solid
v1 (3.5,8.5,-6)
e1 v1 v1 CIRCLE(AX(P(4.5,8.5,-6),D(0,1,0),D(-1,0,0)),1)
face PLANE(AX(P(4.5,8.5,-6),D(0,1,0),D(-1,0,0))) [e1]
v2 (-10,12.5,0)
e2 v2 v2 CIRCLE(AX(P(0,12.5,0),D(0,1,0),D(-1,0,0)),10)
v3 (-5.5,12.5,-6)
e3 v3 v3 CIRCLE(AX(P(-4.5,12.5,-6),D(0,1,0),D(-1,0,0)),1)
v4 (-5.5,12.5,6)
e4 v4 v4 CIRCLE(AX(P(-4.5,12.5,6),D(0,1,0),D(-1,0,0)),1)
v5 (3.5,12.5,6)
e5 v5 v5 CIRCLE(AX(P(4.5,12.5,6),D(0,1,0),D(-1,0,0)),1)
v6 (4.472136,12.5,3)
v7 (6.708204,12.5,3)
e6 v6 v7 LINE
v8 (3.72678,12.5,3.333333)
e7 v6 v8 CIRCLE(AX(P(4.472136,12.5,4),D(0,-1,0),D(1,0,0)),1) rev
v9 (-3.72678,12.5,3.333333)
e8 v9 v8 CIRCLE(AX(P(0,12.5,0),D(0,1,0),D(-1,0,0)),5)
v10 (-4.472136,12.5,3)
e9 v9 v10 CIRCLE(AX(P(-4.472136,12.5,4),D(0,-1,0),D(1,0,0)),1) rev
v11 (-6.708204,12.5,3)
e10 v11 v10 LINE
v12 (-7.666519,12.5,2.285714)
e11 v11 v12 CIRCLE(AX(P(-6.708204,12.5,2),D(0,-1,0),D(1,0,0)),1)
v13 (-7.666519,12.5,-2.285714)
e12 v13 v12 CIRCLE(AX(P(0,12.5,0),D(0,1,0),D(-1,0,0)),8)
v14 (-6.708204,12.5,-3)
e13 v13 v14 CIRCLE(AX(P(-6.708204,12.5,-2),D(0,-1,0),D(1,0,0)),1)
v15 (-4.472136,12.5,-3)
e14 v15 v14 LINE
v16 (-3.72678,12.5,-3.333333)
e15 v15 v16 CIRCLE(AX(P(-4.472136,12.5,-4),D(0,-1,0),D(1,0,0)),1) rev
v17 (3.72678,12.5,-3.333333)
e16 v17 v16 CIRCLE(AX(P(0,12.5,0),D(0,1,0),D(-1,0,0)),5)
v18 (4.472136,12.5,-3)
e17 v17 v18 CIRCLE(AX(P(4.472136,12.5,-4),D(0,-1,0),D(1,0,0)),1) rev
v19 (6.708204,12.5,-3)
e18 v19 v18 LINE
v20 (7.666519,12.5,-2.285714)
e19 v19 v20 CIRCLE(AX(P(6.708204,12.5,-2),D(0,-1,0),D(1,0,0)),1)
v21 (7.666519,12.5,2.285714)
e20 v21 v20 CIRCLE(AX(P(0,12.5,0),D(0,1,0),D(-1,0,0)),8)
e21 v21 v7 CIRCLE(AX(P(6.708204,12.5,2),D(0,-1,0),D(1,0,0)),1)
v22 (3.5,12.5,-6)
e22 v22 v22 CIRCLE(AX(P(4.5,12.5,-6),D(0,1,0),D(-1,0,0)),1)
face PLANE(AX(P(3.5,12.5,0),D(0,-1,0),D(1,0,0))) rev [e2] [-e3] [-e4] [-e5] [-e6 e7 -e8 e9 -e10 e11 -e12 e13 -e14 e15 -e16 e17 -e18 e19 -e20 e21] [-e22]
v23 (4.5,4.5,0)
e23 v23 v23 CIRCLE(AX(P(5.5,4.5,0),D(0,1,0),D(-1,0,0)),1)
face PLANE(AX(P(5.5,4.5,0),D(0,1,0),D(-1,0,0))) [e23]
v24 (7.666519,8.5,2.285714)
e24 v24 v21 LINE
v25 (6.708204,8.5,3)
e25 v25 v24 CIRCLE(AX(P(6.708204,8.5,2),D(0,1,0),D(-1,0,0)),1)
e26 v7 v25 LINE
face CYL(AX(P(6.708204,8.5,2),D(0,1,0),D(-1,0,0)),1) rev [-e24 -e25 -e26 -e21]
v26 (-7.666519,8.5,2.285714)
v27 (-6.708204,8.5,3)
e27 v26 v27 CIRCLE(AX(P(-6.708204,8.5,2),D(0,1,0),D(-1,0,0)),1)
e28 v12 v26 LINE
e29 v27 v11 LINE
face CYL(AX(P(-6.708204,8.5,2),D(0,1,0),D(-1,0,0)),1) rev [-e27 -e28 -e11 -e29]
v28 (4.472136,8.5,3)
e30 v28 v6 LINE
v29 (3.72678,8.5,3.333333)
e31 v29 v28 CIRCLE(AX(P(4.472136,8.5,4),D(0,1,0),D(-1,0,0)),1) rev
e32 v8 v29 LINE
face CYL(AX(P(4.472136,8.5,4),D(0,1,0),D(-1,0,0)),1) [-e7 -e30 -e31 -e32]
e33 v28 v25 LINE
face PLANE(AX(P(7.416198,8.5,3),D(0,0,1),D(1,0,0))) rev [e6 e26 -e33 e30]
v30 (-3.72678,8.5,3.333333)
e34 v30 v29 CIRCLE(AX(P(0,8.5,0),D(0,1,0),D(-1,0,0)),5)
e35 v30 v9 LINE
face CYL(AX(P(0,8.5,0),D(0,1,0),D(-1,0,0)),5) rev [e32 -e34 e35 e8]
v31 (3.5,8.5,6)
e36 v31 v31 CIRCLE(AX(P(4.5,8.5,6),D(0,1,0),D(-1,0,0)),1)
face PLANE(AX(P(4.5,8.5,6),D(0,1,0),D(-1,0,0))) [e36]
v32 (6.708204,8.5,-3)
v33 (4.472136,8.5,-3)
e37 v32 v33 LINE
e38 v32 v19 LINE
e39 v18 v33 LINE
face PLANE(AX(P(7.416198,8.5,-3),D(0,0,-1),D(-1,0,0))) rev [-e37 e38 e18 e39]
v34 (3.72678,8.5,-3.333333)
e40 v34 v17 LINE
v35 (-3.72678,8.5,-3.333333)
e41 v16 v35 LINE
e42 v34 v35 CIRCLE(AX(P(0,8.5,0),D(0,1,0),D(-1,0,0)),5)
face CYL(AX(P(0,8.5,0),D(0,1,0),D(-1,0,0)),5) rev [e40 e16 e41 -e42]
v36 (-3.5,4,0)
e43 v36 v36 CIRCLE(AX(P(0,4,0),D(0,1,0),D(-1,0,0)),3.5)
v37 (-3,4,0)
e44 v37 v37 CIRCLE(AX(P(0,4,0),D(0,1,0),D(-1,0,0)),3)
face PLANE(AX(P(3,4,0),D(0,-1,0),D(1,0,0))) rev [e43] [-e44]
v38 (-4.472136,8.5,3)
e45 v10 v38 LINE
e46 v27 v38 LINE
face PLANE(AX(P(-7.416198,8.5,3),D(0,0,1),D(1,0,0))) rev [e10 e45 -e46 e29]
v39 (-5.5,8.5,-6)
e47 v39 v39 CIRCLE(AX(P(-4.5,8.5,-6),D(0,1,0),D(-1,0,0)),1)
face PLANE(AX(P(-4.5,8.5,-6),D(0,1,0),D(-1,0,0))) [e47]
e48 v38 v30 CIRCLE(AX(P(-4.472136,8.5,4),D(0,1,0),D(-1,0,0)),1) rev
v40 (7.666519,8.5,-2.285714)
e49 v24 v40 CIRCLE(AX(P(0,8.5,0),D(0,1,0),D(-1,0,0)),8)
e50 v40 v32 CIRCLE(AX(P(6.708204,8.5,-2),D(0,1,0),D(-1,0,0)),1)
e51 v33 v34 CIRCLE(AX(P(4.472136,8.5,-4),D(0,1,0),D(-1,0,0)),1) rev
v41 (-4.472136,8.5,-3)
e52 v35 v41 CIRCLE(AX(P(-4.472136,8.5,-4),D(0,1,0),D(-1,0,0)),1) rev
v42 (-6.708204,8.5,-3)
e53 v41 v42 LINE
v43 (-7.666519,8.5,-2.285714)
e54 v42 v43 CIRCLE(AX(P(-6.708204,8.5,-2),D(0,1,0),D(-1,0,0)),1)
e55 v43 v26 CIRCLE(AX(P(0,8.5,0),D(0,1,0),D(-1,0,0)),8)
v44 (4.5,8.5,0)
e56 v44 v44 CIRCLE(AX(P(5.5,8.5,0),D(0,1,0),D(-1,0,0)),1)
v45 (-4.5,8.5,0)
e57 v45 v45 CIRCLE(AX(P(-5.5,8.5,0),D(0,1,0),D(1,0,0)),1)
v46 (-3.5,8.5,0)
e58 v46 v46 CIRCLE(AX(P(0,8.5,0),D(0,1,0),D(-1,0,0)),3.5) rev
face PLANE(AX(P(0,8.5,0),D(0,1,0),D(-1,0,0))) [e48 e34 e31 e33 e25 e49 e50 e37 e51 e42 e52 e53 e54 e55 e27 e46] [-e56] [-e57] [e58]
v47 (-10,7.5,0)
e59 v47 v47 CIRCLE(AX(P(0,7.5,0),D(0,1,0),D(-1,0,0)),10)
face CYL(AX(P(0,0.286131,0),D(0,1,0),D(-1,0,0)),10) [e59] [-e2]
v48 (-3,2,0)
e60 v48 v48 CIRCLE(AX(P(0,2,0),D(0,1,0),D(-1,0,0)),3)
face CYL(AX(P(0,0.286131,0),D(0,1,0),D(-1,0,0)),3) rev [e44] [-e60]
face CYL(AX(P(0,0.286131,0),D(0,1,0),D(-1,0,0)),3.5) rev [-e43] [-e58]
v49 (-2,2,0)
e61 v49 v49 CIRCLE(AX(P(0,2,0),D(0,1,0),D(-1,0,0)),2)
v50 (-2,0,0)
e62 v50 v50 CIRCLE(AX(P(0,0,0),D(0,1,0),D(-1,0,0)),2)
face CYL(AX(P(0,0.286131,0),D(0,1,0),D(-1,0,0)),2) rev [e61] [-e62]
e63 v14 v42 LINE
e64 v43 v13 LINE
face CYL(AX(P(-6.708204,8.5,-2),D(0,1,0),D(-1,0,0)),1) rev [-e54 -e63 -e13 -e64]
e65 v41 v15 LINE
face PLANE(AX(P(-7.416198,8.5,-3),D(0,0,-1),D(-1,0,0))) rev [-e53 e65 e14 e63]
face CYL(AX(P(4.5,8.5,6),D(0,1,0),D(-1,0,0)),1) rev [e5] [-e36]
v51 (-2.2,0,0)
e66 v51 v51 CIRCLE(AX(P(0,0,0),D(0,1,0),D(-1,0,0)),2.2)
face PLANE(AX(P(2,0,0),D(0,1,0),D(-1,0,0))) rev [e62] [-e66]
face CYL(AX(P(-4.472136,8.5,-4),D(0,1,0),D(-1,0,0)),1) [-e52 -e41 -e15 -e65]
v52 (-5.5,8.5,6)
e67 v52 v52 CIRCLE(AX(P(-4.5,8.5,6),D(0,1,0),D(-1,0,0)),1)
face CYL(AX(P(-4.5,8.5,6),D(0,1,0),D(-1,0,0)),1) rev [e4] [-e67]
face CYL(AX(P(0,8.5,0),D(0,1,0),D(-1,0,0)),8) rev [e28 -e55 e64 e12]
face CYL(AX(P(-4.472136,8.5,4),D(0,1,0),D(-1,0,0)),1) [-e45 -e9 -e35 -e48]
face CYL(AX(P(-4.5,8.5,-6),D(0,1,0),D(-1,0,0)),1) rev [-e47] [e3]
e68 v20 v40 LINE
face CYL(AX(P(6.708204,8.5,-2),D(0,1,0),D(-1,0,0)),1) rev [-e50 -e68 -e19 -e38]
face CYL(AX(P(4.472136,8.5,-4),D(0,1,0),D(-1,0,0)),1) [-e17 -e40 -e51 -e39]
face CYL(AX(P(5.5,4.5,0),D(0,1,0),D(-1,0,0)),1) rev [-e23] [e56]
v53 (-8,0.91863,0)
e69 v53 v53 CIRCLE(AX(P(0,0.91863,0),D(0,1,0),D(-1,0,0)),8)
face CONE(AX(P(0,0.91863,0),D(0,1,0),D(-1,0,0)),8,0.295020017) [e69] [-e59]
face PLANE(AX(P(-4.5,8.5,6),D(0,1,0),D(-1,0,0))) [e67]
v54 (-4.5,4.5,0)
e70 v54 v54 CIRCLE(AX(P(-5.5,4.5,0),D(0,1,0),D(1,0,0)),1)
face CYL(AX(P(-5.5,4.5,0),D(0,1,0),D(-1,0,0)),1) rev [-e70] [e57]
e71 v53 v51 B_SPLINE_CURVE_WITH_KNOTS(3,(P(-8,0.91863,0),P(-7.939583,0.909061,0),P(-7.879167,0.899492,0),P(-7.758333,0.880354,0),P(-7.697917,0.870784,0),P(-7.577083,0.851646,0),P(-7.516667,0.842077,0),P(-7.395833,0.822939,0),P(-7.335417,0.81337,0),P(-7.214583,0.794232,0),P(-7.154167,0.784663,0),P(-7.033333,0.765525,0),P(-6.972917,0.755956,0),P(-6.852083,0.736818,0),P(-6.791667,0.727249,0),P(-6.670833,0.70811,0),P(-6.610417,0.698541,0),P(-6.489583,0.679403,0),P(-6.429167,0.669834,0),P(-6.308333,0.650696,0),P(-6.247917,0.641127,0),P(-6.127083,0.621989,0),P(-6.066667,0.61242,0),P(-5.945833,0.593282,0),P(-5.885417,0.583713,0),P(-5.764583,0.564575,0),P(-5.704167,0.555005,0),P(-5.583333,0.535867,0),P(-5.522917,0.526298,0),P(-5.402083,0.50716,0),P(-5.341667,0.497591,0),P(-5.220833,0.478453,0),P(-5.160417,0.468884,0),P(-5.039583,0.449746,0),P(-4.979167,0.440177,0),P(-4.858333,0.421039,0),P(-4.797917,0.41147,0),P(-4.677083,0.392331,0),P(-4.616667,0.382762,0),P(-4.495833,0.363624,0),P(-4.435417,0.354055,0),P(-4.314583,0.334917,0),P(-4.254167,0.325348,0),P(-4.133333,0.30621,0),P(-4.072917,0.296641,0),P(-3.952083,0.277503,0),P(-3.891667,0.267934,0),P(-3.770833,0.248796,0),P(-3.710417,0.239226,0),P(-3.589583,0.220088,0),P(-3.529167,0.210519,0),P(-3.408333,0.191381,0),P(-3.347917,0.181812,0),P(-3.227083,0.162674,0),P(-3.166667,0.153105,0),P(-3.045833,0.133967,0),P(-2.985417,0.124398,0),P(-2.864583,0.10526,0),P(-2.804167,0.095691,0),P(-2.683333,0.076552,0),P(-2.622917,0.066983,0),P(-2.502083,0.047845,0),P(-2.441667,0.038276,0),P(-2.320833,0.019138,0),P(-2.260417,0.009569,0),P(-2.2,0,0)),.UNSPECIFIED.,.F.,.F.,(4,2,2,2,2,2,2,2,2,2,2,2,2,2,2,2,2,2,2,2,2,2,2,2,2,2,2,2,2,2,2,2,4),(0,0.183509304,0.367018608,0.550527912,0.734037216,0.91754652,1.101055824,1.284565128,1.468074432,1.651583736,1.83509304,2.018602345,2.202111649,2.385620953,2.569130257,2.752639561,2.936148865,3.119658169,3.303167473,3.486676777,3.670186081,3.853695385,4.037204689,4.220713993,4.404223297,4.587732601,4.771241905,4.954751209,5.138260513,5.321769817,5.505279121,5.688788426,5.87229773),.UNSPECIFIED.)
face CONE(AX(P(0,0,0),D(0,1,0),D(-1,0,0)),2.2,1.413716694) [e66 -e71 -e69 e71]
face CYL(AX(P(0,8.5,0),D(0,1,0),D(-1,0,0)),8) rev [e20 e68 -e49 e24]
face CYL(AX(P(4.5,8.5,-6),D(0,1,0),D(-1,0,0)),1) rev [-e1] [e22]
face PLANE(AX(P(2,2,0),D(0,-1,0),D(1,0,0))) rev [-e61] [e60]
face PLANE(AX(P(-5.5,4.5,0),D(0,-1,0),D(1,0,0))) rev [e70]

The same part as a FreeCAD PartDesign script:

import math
import FreeCAD as App
import Part
import Sketcher
from FreeCAD import Vector
Q = App.Units.Quantity


def edges_at(feature, points):
    """Names of the edges that pass closest to the given points."""
    edges = feature.Shape.Edges
    near = lambda p: min(range(len(edges)), key=lambda i: edges[i].distToShape(Part.Vertex(*p))[0])
    return sorted({f"Edge{near(p) + 1}" for p in points})

doc = App.newDocument("Part")
params = doc.addObject("Spreadsheet::Sheet", "Params")
for row, (alias, value) in enumerate([
    ("sketch1_width", "1 mm"),
    ("sketch1_height", "2 mm"),
    ("sketch1_height2", "5 mm"),
    ("sketch1_width2", "0.2 mm"),
    ("sketch1_width3", "6.5 mm"),
    ("revolution_angle", "360 deg"),
    ("sketch2_radius", "8 mm"),
    ("sketch2_radius2", "5 mm"),
    ("pocket1_length", "4 mm"),
    ("fillet_radius", "1 mm"),
    ("sketch3_diameter", "2 mm"),
    ("pocket2_length", "4 mm"),
    ("sketch4_diameter", "2 mm"),
    ("pocket3_length", "4 mm"),
], start=1):
    params.set(f"A{row}", alias)
    params.set(f"B{row}", "=" + value)
    params.setAlias(f"B{row}", alias)

body = doc.addObject("PartDesign::Body", "Body")

# Sketch on XY plane
sketch1 = body.newObject("Sketcher::SketchObject", "Sketch")
sketch1.AttachmentSupport = (doc.getObject("XY_Plane"), [""])
sketch1.MapMode = "FlatFace"
sketch1.addGeometry(Part.LineSegment(Vector(2, 2, 0), Vector(2, 0, 0)), False)
sketch1.addGeometry(Part.LineSegment(Vector(2, 0, 0), Vector(2.2, 0, 0)), False)
sketch1.addGeometry(Part.LineSegment(Vector(2.2, 0, 0), Vector(8, 0.92, 0)), False)
sketch1.addGeometry(Part.LineSegment(Vector(8, 0.92, 0), Vector(10, 7.5, 0)), False)
sketch1.addGeometry(Part.LineSegment(Vector(10, 7.5, 0), Vector(10, 12.5, 0)), False)
sketch1.addGeometry(Part.LineSegment(Vector(10, 12.5, 0), Vector(3.5, 12.5, 0)), False)
sketch1.addGeometry(Part.LineSegment(Vector(3.5, 12.5, 0), Vector(3.5, 4, 0)), False)
sketch1.addGeometry(Part.LineSegment(Vector(3.5, 4, 0), Vector(3, 4, 0)), False)
sketch1.addGeometry(Part.LineSegment(Vector(3, 4, 0), Vector(3, 2, 0)), False)
sketch1.addGeometry(Part.LineSegment(Vector(3, 2, 0), Vector(2, 2, 0)), False)
sketch1.addConstraint(Sketcher.Constraint("Coincident", 0, 2, 1, 1))
sketch1.addConstraint(Sketcher.Constraint("Coincident", 1, 2, 2, 1))
sketch1.addConstraint(Sketcher.Constraint("Coincident", 2, 2, 3, 1))
sketch1.addConstraint(Sketcher.Constraint("Coincident", 3, 2, 4, 1))
sketch1.addConstraint(Sketcher.Constraint("Coincident", 4, 2, 5, 1))
sketch1.addConstraint(Sketcher.Constraint("Coincident", 5, 2, 6, 1))
sketch1.addConstraint(Sketcher.Constraint("Coincident", 6, 2, 7, 1))
sketch1.addConstraint(Sketcher.Constraint("Coincident", 7, 2, 8, 1))
sketch1.addConstraint(Sketcher.Constraint("Coincident", 8, 2, 9, 1))
sketch1.addConstraint(Sketcher.Constraint("Coincident", 9, 2, 0, 1))
sketch1.addConstraint(Sketcher.Constraint("Vertical", 0))
sketch1.addConstraint(Sketcher.Constraint("Horizontal", 1))
sketch1.addConstraint(Sketcher.Constraint("Vertical", 4))
sketch1.addConstraint(Sketcher.Constraint("Horizontal", 5))
sketch1.addConstraint(Sketcher.Constraint("Vertical", 6))
sketch1.addConstraint(Sketcher.Constraint("Horizontal", 7))
sketch1.addConstraint(Sketcher.Constraint("Vertical", 8))
sketch1.addConstraint(Sketcher.Constraint("Horizontal", 9))
sketch1.addConstraint(Sketcher.Constraint("PointOnObject", 0, 2, -1))
sketch1.addConstraint(Sketcher.Constraint("Equal", 0, 8))
sketch1.addConstraint(Sketcher.Constraint("DistanceX", 9, 2, 9, 1, Q("1 mm")))
sketch1.addConstraint(Sketcher.Constraint("DistanceY", 0, 2, 0, 1, Q("2 mm")))
sketch1.addConstraint(Sketcher.Constraint("DistanceY", 4, 1, 4, 2, Q("5 mm")))
sketch1.addConstraint(Sketcher.Constraint("Angle", 2, Q("9 deg")))
sketch1.addConstraint(Sketcher.Constraint("DistanceX", 1, 1, 1, 2, Q("0.2 mm")))
sketch1.addConstraint(Sketcher.Constraint("DistanceX", 5, 2, 5, 1, Q("6.5 mm")))
sketch1.addConstraint(Sketcher.Constraint("DistanceX", 7, 2, 7, 1, Q("0.5 mm")))
sketch1.addConstraint(Sketcher.Constraint("DistanceY", 6, 2, 6, 1, Q("8.5 mm")))
sketch1.addConstraint(Sketcher.Constraint("DistanceX", -1, 1, 0, 2, Q("2 mm")))
sketch1.addConstraint(Sketcher.Constraint("DistanceX", -1, 1, 2, 2, Q("8 mm")))
sketch1.setExpression("Constraints[20]", "Params.sketch1_width")
sketch1.setExpression("Constraints[21]", "Params.sketch1_height")
sketch1.setExpression("Constraints[22]", "Params.sketch1_height2")
sketch1.setExpression("Constraints[24]", "Params.sketch1_width2")
sketch1.setExpression("Constraints[25]", "Params.sketch1_width3")
revolution = body.newObject("PartDesign::Revolution", "Revolution")
revolution.Profile = sketch1
revolution.ReferenceAxis = (sketch1, ["V_Axis"])
revolution.setExpression("Angle", "Params.revolution_angle")

# Sketch on XZ plane
sketch2 = body.newObject("Sketcher::SketchObject", "Sketch001")
sketch2.AttachmentSupport = (doc.getObject("XZ_Plane"), [""])
sketch2.MapMode = "FlatFace"
sketch2.AttachmentOffset = App.Placement(Vector(0, 0, -12.5), App.Rotation())
sketch2.addGeometry(Part.LineSegment(Vector(-4, -3, 0), Vector(-7.4, -3, 0)), False)
sketch2.addGeometry(Part.ArcOfCircle(Part.Circle(Vector(0, 0, 0), Vector(0, 0, 1), 8), math.radians(158), math.radians(202)), False)
sketch2.addGeometry(Part.LineSegment(Vector(-7.4, 3, 0), Vector(-4, 3, 0)), False)
sketch2.addGeometry(Part.ArcOfCircle(Part.Circle(Vector(0, 0, 0), Vector(0, 0, 1), 5), math.radians(37), math.radians(143)), False)
sketch2.addGeometry(Part.LineSegment(Vector(4, 3, 0), Vector(7.4, 3, 0)), False)
sketch2.addGeometry(Part.ArcOfCircle(Part.Circle(Vector(0, 0, 0), Vector(0, 0, 1), 8), math.radians(-22), math.radians(22)), False)
sketch2.addGeometry(Part.LineSegment(Vector(7.4, -3, 0), Vector(4, -3, 0)), False)
sketch2.addGeometry(Part.ArcOfCircle(Part.Circle(Vector(0, 0, 0), Vector(0, 0, 1), 5), math.radians(-143), math.radians(-37)), False)
sketch2.addConstraint(Sketcher.Constraint("Coincident", 0, 2, 1, 2))
sketch2.addConstraint(Sketcher.Constraint("Coincident", 1, 1, 2, 1))
sketch2.addConstraint(Sketcher.Constraint("Coincident", 2, 2, 3, 2))
sketch2.addConstraint(Sketcher.Constraint("Coincident", 3, 1, 4, 1))
sketch2.addConstraint(Sketcher.Constraint("Coincident", 4, 2, 5, 2))
sketch2.addConstraint(Sketcher.Constraint("Coincident", 5, 1, 6, 1))
sketch2.addConstraint(Sketcher.Constraint("Coincident", 6, 2, 7, 2))
sketch2.addConstraint(Sketcher.Constraint("Coincident", 7, 1, 0, 1))
sketch2.addConstraint(Sketcher.Constraint("Horizontal", 0))
sketch2.addConstraint(Sketcher.Constraint("Horizontal", 2))
sketch2.addConstraint(Sketcher.Constraint("Horizontal", 4))
sketch2.addConstraint(Sketcher.Constraint("Horizontal", 6))
sketch2.addConstraint(Sketcher.Constraint("Coincident", 1, 3, -1, 1))
sketch2.addConstraint(Sketcher.Constraint("Coincident", 3, 3, -1, 1))
sketch2.addConstraint(Sketcher.Constraint("Coincident", 5, 3, -1, 1))
sketch2.addConstraint(Sketcher.Constraint("Coincident", 7, 3, -1, 1))
sketch2.addConstraint(Sketcher.Constraint("Equal", 1, 5))
sketch2.addConstraint(Sketcher.Constraint("Equal", 3, 7))
sketch2.addConstraint(Sketcher.Constraint("Horizontal", 2, 2, 3, 1))
sketch2.addConstraint(Sketcher.Constraint("Horizontal", 0, 2, 5, 1))
sketch2.addConstraint(Sketcher.Constraint("Vertical", 0, 2, 1, 1))
sketch2.addConstraint(Sketcher.Constraint("Radius", 1, Q("8 mm")))
sketch2.addConstraint(Sketcher.Constraint("Radius", 3, Q("5 mm")))
sketch2.addConstraint(Sketcher.Constraint("DistanceY", 0, 2, -1, 1, Q("3 mm")))
sketch2.setExpression("Constraints[21]", "Params.sketch2_radius")
sketch2.setExpression("Constraints[22]", "Params.sketch2_radius2")
pocket1 = body.newObject("PartDesign::Pocket", "Pocket")
pocket1.Profile = sketch2
pocket1.setExpression("Length", "Params.pocket1_length")
pocket1.Reversed = True
doc.recompute()

fillet = body.newObject("PartDesign::Fillet", "Fillet")
fillet.Base = (pocket1, edges_at(pocket1, [
    (-7.416, 10.5, 3),
    (-7.416, 10.5, -3),
    (-4, 10.5, -3),
    (4, 10.5, -3),
    (7.416, 10.5, -3),
    (7.416, 10.5, 3),
    (4, 10.5, 3),
    (-4, 10.5, 3),
]))
fillet.setExpression("Radius", "Params.fillet_radius")

# Sketch on XZ plane
sketch3 = body.newObject("Sketcher::SketchObject", "Sketch002")
sketch3.AttachmentSupport = (doc.getObject("XZ_Plane"), [""])
sketch3.MapMode = "FlatFace"
sketch3.AttachmentOffset = App.Placement(Vector(0, 0, -8.5), App.Rotation())
sketch3.addGeometry(Part.Circle(Vector(5.5, 0, 0), Vector(0, 0, 1), 1), False)
sketch3.addGeometry(Part.Circle(Vector(-5.5, 0, 0), Vector(0, 0, 1), 1), False)
sketch3.addConstraint(Sketcher.Constraint("Equal", 0, 1))
sketch3.addConstraint(Sketcher.Constraint("Symmetric", 0, 3, 1, 3, -1, 1))
sketch3.addConstraint(Sketcher.Constraint("PointOnObject", 0, 3, -1))
sketch3.addConstraint(Sketcher.Constraint("Diameter", 0, Q("2 mm")))
sketch3.addConstraint(Sketcher.Constraint("DistanceX", 1, 3, 0, 3, Q("11 mm")))
sketch3.setExpression("Constraints[3]", "Params.sketch3_diameter")
pocket2 = body.newObject("PartDesign::Pocket", "Pocket001")
pocket2.Profile = sketch3
pocket2.setExpression("Length", "Params.pocket2_length")
pocket2.Reversed = True

# Sketch on XZ plane
sketch4 = body.newObject("Sketcher::SketchObject", "Sketch003")
sketch4.AttachmentSupport = (doc.getObject("XZ_Plane"), [""])
sketch4.MapMode = "FlatFace"
sketch4.AttachmentOffset = App.Placement(Vector(0, 0, -12.5), App.Rotation())
sketch4.addGeometry(Part.Circle(Vector(-4.5, -6, 0), Vector(0, 0, 1), 1), False)
sketch4.addGeometry(Part.Circle(Vector(4.5, -6, 0), Vector(0, 0, 1), 1), False)
sketch4.addGeometry(Part.Circle(Vector(-4.5, 6, 0), Vector(0, 0, 1), 1), False)
sketch4.addGeometry(Part.Circle(Vector(4.5, 6, 0), Vector(0, 0, 1), 1), False)
sketch4.addConstraint(Sketcher.Constraint("Equal", 0, 1))
sketch4.addConstraint(Sketcher.Constraint("Equal", 1, 2))
sketch4.addConstraint(Sketcher.Constraint("Equal", 2, 3))
sketch4.addConstraint(Sketcher.Constraint("Symmetric", 1, 3, 2, 3, -1, 1))
sketch4.addConstraint(Sketcher.Constraint("Symmetric", 0, 3, 3, 3, -1, 1))
sketch4.addConstraint(Sketcher.Constraint("Symmetric", 0, 3, 1, 3, -2))
sketch4.addConstraint(Sketcher.Constraint("Diameter", 0, Q("2 mm")))
sketch4.addConstraint(Sketcher.Constraint("DistanceY", 0, 3, -1, 1, Q("6 mm")))
sketch4.addConstraint(Sketcher.Constraint("DistanceX", 0, 3, 1, 3, Q("9 mm")))
sketch4.setExpression("Constraints[6]", "Params.sketch4_diameter")
pocket3 = body.newObject("PartDesign::Pocket", "Pocket002")
pocket3.Profile = sketch4
pocket3.setExpression("Length", "Params.pocket3_length")
pocket3.Reversed = True

doc.recompute()
